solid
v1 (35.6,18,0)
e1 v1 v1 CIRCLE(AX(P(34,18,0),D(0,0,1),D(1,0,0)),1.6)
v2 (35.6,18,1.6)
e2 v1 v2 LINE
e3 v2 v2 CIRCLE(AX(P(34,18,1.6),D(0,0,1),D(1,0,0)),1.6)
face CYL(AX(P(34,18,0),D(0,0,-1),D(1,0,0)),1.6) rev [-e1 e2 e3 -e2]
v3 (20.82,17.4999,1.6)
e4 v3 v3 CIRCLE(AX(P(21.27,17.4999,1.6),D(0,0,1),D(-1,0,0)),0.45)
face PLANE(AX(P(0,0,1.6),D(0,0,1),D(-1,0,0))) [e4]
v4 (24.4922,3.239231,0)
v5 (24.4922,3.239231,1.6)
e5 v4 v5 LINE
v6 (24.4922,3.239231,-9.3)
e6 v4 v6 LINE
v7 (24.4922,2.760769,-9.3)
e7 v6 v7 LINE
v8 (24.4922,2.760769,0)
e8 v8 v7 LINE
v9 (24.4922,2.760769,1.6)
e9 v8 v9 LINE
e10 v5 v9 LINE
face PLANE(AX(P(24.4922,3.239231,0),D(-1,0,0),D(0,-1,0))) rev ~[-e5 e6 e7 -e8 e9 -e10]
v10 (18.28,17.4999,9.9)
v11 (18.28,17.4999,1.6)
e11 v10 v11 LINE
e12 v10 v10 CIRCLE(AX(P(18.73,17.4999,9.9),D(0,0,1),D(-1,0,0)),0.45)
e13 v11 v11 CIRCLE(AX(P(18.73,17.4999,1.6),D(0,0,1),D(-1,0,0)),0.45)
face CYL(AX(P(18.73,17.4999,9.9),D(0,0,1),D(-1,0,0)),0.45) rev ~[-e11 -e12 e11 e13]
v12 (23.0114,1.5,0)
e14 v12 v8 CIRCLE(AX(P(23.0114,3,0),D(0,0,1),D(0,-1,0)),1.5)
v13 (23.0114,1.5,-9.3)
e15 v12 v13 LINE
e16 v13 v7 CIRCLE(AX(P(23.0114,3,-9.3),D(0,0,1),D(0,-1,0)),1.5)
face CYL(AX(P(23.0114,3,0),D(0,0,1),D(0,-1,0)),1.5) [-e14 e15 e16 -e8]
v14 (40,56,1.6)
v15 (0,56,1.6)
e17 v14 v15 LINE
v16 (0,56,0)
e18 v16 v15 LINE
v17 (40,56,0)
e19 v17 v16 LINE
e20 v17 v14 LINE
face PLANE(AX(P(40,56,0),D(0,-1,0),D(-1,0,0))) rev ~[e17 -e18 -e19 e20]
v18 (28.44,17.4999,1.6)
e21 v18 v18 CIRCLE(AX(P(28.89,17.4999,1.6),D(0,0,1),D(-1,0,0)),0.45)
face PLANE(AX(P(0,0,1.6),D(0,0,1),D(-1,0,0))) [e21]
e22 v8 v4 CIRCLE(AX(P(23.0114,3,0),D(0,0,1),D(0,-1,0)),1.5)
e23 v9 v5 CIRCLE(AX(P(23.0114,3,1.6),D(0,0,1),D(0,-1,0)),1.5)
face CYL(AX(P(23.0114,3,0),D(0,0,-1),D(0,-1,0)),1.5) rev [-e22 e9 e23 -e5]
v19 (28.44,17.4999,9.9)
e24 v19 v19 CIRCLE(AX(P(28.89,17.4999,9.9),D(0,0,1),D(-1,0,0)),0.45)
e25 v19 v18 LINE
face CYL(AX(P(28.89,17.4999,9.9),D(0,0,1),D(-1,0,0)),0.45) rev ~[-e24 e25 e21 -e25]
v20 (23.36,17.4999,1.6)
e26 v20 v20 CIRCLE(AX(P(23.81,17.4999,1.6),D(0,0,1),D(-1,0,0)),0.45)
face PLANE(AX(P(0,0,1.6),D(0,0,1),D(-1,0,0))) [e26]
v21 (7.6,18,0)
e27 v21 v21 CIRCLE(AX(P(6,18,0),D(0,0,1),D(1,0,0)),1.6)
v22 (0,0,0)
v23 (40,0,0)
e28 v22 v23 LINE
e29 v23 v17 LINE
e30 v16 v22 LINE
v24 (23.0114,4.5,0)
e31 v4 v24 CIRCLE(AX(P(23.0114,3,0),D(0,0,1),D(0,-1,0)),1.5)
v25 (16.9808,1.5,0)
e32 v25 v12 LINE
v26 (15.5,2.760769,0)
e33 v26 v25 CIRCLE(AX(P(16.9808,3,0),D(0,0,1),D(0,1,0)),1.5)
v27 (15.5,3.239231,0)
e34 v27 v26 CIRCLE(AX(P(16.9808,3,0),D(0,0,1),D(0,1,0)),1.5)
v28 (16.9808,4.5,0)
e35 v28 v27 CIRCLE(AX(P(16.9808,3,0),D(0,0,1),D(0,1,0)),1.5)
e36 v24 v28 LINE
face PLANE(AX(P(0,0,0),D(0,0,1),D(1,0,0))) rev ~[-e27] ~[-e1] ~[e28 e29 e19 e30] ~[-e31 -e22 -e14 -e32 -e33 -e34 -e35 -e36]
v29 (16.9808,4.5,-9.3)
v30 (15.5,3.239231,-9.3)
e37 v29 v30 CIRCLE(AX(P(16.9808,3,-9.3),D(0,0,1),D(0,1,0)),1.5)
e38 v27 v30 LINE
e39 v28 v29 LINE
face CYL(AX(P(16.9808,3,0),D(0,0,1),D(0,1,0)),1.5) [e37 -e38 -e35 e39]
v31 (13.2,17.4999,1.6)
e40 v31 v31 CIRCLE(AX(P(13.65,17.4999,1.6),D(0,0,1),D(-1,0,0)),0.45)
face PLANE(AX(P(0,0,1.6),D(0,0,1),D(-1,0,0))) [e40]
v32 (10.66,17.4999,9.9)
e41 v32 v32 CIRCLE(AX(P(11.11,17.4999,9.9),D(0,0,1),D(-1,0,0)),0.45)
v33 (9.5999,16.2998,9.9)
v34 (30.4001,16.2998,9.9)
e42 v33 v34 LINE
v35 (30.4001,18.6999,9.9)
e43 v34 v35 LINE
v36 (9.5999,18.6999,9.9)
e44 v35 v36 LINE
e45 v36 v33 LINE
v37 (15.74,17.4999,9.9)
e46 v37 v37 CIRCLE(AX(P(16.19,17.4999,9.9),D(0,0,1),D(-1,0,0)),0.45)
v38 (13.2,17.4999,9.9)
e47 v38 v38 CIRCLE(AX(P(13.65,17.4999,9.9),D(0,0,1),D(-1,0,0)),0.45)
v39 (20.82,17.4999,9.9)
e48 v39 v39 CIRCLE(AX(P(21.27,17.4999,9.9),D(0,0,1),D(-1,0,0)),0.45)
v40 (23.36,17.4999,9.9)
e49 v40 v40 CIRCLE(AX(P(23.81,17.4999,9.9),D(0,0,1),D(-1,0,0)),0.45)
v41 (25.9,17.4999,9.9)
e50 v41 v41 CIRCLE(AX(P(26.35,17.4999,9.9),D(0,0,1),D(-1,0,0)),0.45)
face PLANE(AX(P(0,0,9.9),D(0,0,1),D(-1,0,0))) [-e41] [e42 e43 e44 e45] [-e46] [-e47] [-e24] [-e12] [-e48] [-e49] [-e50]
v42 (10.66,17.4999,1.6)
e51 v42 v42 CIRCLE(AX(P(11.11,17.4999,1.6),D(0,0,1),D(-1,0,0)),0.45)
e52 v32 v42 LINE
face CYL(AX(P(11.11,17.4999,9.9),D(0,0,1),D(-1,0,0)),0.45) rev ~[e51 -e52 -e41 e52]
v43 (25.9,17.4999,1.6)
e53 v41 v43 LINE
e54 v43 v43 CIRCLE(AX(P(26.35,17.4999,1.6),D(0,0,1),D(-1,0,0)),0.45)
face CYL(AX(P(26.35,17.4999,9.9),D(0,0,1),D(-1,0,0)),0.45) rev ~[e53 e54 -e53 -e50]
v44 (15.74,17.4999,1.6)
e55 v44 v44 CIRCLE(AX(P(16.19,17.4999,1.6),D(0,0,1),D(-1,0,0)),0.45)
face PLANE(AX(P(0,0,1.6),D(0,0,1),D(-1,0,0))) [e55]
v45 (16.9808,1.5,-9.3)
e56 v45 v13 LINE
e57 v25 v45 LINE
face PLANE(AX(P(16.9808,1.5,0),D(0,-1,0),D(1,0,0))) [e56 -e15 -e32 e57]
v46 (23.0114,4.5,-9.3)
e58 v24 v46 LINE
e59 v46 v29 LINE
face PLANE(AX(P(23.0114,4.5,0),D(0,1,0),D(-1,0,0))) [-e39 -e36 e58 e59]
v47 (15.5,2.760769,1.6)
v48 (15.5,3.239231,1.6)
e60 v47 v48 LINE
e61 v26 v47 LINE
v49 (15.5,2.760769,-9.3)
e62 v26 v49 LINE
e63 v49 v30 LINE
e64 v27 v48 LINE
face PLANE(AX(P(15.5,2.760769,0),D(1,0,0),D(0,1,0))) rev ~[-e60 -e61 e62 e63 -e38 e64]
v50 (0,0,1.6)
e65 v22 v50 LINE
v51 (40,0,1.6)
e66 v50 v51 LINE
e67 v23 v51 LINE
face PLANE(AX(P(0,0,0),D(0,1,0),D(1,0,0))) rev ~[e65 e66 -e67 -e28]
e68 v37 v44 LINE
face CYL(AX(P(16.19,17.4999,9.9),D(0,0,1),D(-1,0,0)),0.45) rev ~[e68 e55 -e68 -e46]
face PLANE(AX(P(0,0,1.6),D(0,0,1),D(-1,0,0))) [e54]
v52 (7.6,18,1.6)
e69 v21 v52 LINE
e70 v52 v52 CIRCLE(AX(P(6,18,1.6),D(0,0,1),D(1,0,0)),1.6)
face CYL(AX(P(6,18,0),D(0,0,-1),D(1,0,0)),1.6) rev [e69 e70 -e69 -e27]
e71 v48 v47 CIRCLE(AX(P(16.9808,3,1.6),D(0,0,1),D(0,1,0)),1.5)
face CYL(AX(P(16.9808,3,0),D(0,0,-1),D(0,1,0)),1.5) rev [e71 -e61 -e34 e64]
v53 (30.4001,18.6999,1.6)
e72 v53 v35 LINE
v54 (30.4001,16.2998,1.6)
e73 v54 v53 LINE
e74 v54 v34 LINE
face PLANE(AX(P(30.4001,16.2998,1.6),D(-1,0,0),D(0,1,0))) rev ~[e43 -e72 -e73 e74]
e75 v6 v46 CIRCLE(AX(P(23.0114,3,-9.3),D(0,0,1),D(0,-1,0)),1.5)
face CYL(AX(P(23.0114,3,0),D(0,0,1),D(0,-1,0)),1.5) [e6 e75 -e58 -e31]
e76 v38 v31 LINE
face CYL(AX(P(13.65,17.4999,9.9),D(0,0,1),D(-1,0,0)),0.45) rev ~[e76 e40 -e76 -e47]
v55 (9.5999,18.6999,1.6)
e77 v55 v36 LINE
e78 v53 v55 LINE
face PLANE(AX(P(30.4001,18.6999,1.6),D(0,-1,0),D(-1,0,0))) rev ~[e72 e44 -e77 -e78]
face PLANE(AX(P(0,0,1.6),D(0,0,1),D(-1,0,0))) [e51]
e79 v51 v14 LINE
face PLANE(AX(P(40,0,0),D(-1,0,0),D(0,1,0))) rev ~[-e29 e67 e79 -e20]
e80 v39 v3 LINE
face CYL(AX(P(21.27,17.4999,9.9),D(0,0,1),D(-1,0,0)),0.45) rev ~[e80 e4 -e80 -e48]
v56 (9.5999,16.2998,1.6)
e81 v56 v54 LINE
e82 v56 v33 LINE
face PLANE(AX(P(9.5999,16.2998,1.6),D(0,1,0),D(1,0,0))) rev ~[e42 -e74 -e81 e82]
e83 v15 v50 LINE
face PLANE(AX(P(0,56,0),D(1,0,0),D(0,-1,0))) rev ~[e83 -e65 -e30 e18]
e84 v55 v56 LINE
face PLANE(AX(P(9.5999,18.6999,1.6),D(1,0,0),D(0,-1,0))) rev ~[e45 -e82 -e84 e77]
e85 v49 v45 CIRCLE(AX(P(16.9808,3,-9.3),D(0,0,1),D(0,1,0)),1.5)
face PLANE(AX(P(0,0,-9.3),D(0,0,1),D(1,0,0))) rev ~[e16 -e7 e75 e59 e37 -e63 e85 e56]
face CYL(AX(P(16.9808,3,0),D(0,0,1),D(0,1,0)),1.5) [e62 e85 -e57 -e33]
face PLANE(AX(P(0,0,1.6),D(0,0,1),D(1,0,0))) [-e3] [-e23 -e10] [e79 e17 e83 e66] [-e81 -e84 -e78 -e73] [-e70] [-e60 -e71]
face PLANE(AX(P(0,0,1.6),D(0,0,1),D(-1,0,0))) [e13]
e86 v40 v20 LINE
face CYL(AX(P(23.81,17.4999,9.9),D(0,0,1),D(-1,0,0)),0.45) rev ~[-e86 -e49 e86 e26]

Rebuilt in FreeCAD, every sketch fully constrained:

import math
import FreeCAD as App
import Part
import Sketcher
from FreeCAD import Vector
Q = App.Units.Quantity


def add_polygon(sketch, points):
    """Adds a closed chain of lines whose ends are joined by coincident constraints."""
    first, n = sketch.GeometryCount, len(points)
    for a, b in zip(points, points[1:] + points[:1]):
        sketch.addGeometry(Part.LineSegment(App.Vector(*a, 0), App.Vector(*b, 0)), False)
    for i in range(n):
        sketch.addConstraint(Sketcher.Constraint("Coincident", first + i, 2, first + (i + 1) % n, 1))

doc = App.newDocument("Part")
params = doc.addObject("Spreadsheet::Sheet", "Params")
for row, (alias, value) in enumerate([
    ("sketch1_radius", "1.5 mm"),
    ("sketch1_diameter", "3.2 mm"),
    ("sketch1_width", "40 mm"),
    ("sketch1_height", "56 mm"),
    ("pad1_length", "1.6 mm"),
    ("sketch2_radius", "1.5 mm"),
    ("pad2_length", "9.3 mm"),
    ("sketch3_height", "2.4 mm"),
    ("pad3_length", "8.3 mm"),
    ("sketch4_diameter", "0.9 mm"),
    ("pocket1_length", "8.3 mm"),
], start=1):
    params.set(f"A{row}", alias)
    params.set(f"B{row}", "=" + value)
    params.setAlias(f"B{row}", alias)

body = doc.addObject("PartDesign::Body", "Body")

sketch1 = body.newObject("Sketcher::SketchObject", "Sketch")
sketch1.AttachmentSupport = (doc.getObject("XY_Plane"), [""])
sketch1.MapMode = "FlatFace"
add_polygon(sketch1, [(0, 0), (40, 0), (40, 56), (0, 56)])
sketch1.addGeometry(Part.ArcOfCircle(Part.Circle(Vector(16.98, 3, 0), Vector(0, 0, 1), 1.5), math.radians(170.82), math.radians(189.18)), False)
sketch1.addGeometry(Part.LineSegment(Vector(15.5, 3.24, 0), Vector(15.5, 2.76, 0)), False)
sketch1.addGeometry(Part.ArcOfCircle(Part.Circle(Vector(23.01, 3, 0), Vector(0, 0, 1), 1.5), math.radians(-9.18), math.radians(9.18)), False)
sketch1.addGeometry(Part.LineSegment(Vector(24.49, 2.76, 0), Vector(24.49, 3.24, 0)), False)
sketch1.addGeometry(Part.Circle(Vector(6, 18, 0), Vector(0, 0, 1), 1.6), False)
sketch1.addGeometry(Part.Circle(Vector(34, 18, 0), Vector(0, 0, 1), 1.6), False)
sketch1.addConstraint(Sketcher.Constraint("Coincident", 4, 1, 5, 1))
sketch1.addConstraint(Sketcher.Constraint("Coincident", 5, 2, 4, 2))
sketch1.addConstraint(Sketcher.Constraint("Coincident", 6, 1, 7, 1))
sketch1.addConstraint(Sketcher.Constraint("Coincident", 7, 2, 6, 2))
sketch1.addConstraint(Sketcher.Constraint("Horizontal", 0))
sketch1.addConstraint(Sketcher.Constraint("Vertical", 1))
sketch1.addConstraint(Sketcher.Constraint("Horizontal", 2))
sketch1.addConstraint(Sketcher.Constraint("Vertical", 3))
sketch1.addConstraint(Sketcher.Constraint("Vertical", 5))
sketch1.addConstraint(Sketcher.Constraint("Vertical", 7))
sketch1.addConstraint(Sketcher.Constraint("Coincident", 3, 2, -1, 1))
sketch1.addConstraint(Sketcher.Constraint("Equal", 4, 6))
sketch1.addConstraint(Sketcher.Constraint("Equal", 8, 9))
sketch1.addConstraint(Sketcher.Constraint("Horizontal", 4, 3, 6, 3))
sketch1.addConstraint(Sketcher.Constraint("Horizontal", 8, 3, 9, 3))
sketch1.addConstraint(Sketcher.Constraint("Horizontal", 5, 2, 6, 1))
sketch1.addConstraint(Sketcher.Constraint("Radius", 4, Q("1.5 mm")))
sketch1.addConstraint(Sketcher.Constraint("DistanceY", -1, 1, 4, 3, Q("3 mm")))
sketch1.addConstraint(Sketcher.Constraint("Diameter", 8, Q("3.2 mm")))
sketch1.addConstraint(Sketcher.Constraint("DistanceX", 0, 1, 0, 2, Q("40 mm")))
sketch1.addConstraint(Sketcher.Constraint("DistanceY", 1, 1, 1, 2, Q("56 mm")))
sketch1.addConstraint(Sketcher.Constraint("DistanceX", -1, 1, 8, 3, Q("6 mm")))
sketch1.addConstraint(Sketcher.Constraint("DistanceY", -1, 1, 8, 3, Q("18 mm")))
sketch1.addConstraint(Sketcher.Constraint("DistanceX", -1, 1, 9, 3, Q("34 mm")))
sketch1.addConstraint(Sketcher.Constraint("DistanceX", -1, 1, 4, 1, Q("15.5 mm")))
sketch1.addConstraint(Sketcher.Constraint("DistanceY", 5, 2, 5, 1, Q("0.4785 mm")))
sketch1.addConstraint(Sketcher.Constraint("DistanceX", -1, 1, 6, 3, Q("23.0114 mm")))
sketch1.setExpression("Constraints[20]", "Params.sketch1_radius")
sketch1.setExpression("Constraints[22]", "Params.sketch1_diameter")
sketch1.setExpression("Constraints[23]", "Params.sketch1_width")
sketch1.setExpression("Constraints[24]", "Params.sketch1_height")
pad1 = body.newObject("PartDesign::Pad", "Pad")
pad1.Profile = sketch1
pad1.setExpression("Length", "Params.pad1_length")

sketch2 = body.newObject("Sketcher::SketchObject", "Sketch001")
sketch2.AttachmentSupport = (doc.getObject("XY_Plane"), [""])
sketch2.MapMode = "FlatFace"
sketch2.addGeometry(Part.LineSegment(Vector(24.49, 2.76, 0), Vector(24.49, 3.24, 0)), False)
sketch2.addGeometry(Part.ArcOfCircle(Part.Circle(Vector(23.01, 3, 0), Vector(0, 0, 1), 1.5), math.radians(9), math.radians(90)), False)
sketch2.addGeometry(Part.LineSegment(Vector(23.01, 4.5, 0), Vector(16.98, 4.5, 0)), False)
sketch2.addGeometry(Part.ArcOfCircle(Part.Circle(Vector(16.98, 3, 0), Vector(0, 0, 1), 1.5), math.radians(90), math.radians(171)), False)
sketch2.addGeometry(Part.LineSegment(Vector(15.5, 3.24, 0), Vector(15.5, 2.76, 0)), False)
sketch2.addGeometry(Part.ArcOfCircle(Part.Circle(Vector(16.98, 3, 0), Vector(0, 0, 1), 1.5), math.radians(-171), math.radians(-90)), False)
sketch2.addGeometry(Part.LineSegment(Vector(16.98, 1.5, 0), Vector(23.01, 1.5, 0)), False)
sketch2.addGeometry(Part.ArcOfCircle(Part.Circle(Vector(23.01, 3, 0), Vector(0, 0, 1), 1.5), math.radians(-90), math.radians(-9)), False)
sketch2.addConstraint(Sketcher.Constraint("Coincident", 0, 2, 1, 1))
sketch2.addConstraint(Sketcher.Constraint("Tangent", 1, 2, 2, 1))
sketch2.addConstraint(Sketcher.Constraint("Tangent", 2, 2, 3, 1))
sketch2.addConstraint(Sketcher.Constraint("Coincident", 3, 2, 4, 1))
sketch2.addConstraint(Sketcher.Constraint("Coincident", 4, 2, 5, 1))
sketch2.addConstraint(Sketcher.Constraint("Tangent", 5, 2, 6, 1))
sketch2.addConstraint(Sketcher.Constraint("Tangent", 6, 2, 7, 1))
sketch2.addConstraint(Sketcher.Constraint("Coincident", 7, 2, 0, 1))
sketch2.addConstraint(Sketcher.Constraint("Vertical", 0))
sketch2.addConstraint(Sketcher.Constraint("Horizontal", 2))
sketch2.addConstraint(Sketcher.Constraint("Vertical", 4))
sketch2.addConstraint(Sketcher.Constraint("Horizontal", 6))
sketch2.addConstraint(Sketcher.Constraint("Coincident", 5, 3, 3, 3))
sketch2.addConstraint(Sketcher.Constraint("Coincident", 7, 3, 1, 3))
sketch2.addConstraint(Sketcher.Constraint("Equal", 1, 3))
sketch2.addConstraint(Sketcher.Constraint("Equal", 3, 5))
sketch2.addConstraint(Sketcher.Constraint("Horizontal", 0, 2, 3, 2))
sketch2.addConstraint(Sketcher.Constraint("Radius", 1, Q("1.5 mm")))
sketch2.addConstraint(Sketcher.Constraint("DistanceY", -1, 1, 1, 3, Q("3 mm")))
sketch2.addConstraint(Sketcher.Constraint("DistanceX", -1, 1, 3, 2, Q("15.5 mm")))
sketch2.addConstraint(Sketcher.Constraint("DistanceX", 2, 2, 2, 1, Q("6.0306 mm")))
sketch2.addConstraint(Sketcher.Constraint("DistanceY", 0, 1, 0, 2, Q("0.4785 mm")))
sketch2.setExpression("Constraints[17]", "Params.sketch2_radius")
pad2 = body.newObject("PartDesign::Pad", "Pad001")
pad2.Profile = sketch2
pad2.setExpression("Length", "Params.pad2_length")
pad2.Reversed = True

sketch3 = body.newObject("Sketcher::SketchObject", "Sketch002")
sketch3.AttachmentSupport = (doc.getObject("XY_Plane"), [""])
sketch3.MapMode = "FlatFace"
sketch3.AttachmentOffset = App.Placement(Vector(0, 0, 1.6), App.Rotation())
add_polygon(sketch3, [(9.6, 18.7), (9.6, 16.3), (30.4, 16.3), (30.4, 18.7)])
sketch3.addConstraint(Sketcher.Constraint("Vertical", 0))
sketch3.addConstraint(Sketcher.Constraint("Horizontal", 1))
sketch3.addConstraint(Sketcher.Constraint("Vertical", 2))
sketch3.addConstraint(Sketcher.Constraint("Horizontal", 3))
sketch3.addConstraint(Sketcher.Constraint("DistanceY", 0, 2, 0, 1, Q("2.4 mm")))
sketch3.addConstraint(Sketcher.Constraint("DistanceX", -1, 1, 0, 2, Q("9.6 mm")))
sketch3.addConstraint(Sketcher.Constraint("DistanceX", -1, 1, 1, 2, Q("30.4 mm")))
sketch3.addConstraint(Sketcher.Constraint("DistanceY", -1, 1, 2, 2, Q("18.7 mm")))
sketch3.setExpression("Constraints[8]", "Params.sketch3_height")
pad3 = body.newObject("PartDesign::Pad", "Pad002")
pad3.Profile = sketch3
pad3.setExpression("Length", "Params.pad3_length")

sketch4 = body.newObject("Sketcher::SketchObject", "Sketch003")
sketch4.AttachmentSupport = (doc.getObject("XY_Plane"), [""])
sketch4.MapMode = "FlatFace"
sketch4.AttachmentOffset = App.Placement(Vector(0, 0, 9.9), App.Rotation())
sketch4.addGeometry(Part.Circle(Vector(28.89, 17.5, 0), Vector(0, 0, 1), 0.45), False)
sketch4.addGeometry(Part.Circle(Vector(26.35, 17.5, 0), Vector(0, 0, 1), 0.45), False)
sketch4.addGeometry(Part.Circle(Vector(23.81, 17.5, 0), Vector(0, 0, 1), 0.45), False)
sketch4.addGeometry(Part.Circle(Vector(21.27, 17.5, 0), Vector(0, 0, 1), 0.45), False)
sketch4.addGeometry(Part.Circle(Vector(18.73, 17.5, 0), Vector(0, 0, 1), 0.45), False)
sketch4.addGeometry(Part.Circle(Vector(16.19, 17.5, 0), Vector(0, 0, 1), 0.45), False)
sketch4.addGeometry(Part.Circle(Vector(13.65, 17.5, 0), Vector(0, 0, 1), 0.45), False)
sketch4.addGeometry(Part.Circle(Vector(11.11, 17.5, 0), Vector(0, 0, 1), 0.45), False)
sketch4.addConstraint(Sketcher.Constraint("Equal", 0, 1))
sketch4.addConstraint(Sketcher.Constraint("Equal", 1, 2))
sketch4.addConstraint(Sketcher.Constraint("Equal", 2, 3))
sketch4.addConstraint(Sketcher.Constraint("Equal", 3, 4))
sketch4.addConstraint(Sketcher.Constraint("Equal", 4, 5))
sketch4.addConstraint(Sketcher.Constraint("Equal", 5, 6))
sketch4.addConstraint(Sketcher.Constraint("Equal", 6, 7))
sketch4.addConstraint(Sketcher.Constraint("Horizontal", 0, 3, 1, 3))
sketch4.addConstraint(Sketcher.Constraint("Horizontal", 1, 3, 2, 3))
sketch4.addConstraint(Sketcher.Constraint("Horizontal", 2, 3, 3, 3))
sketch4.addConstraint(Sketcher.Constraint("Horizontal", 3, 3, 4, 3))
sketch4.addConstraint(Sketcher.Constraint("Horizontal", 4, 3, 5, 3))
sketch4.addConstraint(Sketcher.Constraint("Horizontal", 5, 3, 6, 3))
sketch4.addConstraint(Sketcher.Constraint("Horizontal", 6, 3, 7, 3))
sketch4.addConstraint(Sketcher.Constraint("Diameter", 0, Q("0.9 mm")))
sketch4.addConstraint(Sketcher.Constraint("DistanceX", 1, 3, 0, 3, Q("2.54 mm")))
sketch4.addConstraint(Sketcher.Constraint("DistanceX", 2, 3, 1, 3, Q("2.54 mm")))
sketch4.addConstraint(Sketcher.Constraint("DistanceX", 3, 3, 2, 3, Q("2.54 mm")))
sketch4.addConstraint(Sketcher.Constraint("DistanceX", 4, 3, 3, 3, Q("2.54 mm")))
sketch4.addConstraint(Sketcher.Constraint("DistanceX", 5, 3, 4, 3, Q("2.54 mm")))
sketch4.addConstraint(Sketcher.Constraint("DistanceX", 6, 3, 5, 3, Q("2.54 mm")))
sketch4.addConstraint(Sketcher.Constraint("DistanceX", 7, 3, 6, 3, Q("2.54 mm")))
sketch4.addConstraint(Sketcher.Constraint("DistanceY", -1, 1, 0, 3, Q("17.5 mm")))
sketch4.addConstraint(Sketcher.Constraint("DistanceX", -1, 1, 0, 3, Q("28.89 mm")))
sketch4.setExpression("Constraints[14]", "Params.sketch4_diameter")
pocket1 = body.newObject("PartDesign::Pocket", "Pocket")
pocket1.Profile = sketch4
pocket1.setExpression("Length", "Params.pocket1_length")

doc.recompute()
